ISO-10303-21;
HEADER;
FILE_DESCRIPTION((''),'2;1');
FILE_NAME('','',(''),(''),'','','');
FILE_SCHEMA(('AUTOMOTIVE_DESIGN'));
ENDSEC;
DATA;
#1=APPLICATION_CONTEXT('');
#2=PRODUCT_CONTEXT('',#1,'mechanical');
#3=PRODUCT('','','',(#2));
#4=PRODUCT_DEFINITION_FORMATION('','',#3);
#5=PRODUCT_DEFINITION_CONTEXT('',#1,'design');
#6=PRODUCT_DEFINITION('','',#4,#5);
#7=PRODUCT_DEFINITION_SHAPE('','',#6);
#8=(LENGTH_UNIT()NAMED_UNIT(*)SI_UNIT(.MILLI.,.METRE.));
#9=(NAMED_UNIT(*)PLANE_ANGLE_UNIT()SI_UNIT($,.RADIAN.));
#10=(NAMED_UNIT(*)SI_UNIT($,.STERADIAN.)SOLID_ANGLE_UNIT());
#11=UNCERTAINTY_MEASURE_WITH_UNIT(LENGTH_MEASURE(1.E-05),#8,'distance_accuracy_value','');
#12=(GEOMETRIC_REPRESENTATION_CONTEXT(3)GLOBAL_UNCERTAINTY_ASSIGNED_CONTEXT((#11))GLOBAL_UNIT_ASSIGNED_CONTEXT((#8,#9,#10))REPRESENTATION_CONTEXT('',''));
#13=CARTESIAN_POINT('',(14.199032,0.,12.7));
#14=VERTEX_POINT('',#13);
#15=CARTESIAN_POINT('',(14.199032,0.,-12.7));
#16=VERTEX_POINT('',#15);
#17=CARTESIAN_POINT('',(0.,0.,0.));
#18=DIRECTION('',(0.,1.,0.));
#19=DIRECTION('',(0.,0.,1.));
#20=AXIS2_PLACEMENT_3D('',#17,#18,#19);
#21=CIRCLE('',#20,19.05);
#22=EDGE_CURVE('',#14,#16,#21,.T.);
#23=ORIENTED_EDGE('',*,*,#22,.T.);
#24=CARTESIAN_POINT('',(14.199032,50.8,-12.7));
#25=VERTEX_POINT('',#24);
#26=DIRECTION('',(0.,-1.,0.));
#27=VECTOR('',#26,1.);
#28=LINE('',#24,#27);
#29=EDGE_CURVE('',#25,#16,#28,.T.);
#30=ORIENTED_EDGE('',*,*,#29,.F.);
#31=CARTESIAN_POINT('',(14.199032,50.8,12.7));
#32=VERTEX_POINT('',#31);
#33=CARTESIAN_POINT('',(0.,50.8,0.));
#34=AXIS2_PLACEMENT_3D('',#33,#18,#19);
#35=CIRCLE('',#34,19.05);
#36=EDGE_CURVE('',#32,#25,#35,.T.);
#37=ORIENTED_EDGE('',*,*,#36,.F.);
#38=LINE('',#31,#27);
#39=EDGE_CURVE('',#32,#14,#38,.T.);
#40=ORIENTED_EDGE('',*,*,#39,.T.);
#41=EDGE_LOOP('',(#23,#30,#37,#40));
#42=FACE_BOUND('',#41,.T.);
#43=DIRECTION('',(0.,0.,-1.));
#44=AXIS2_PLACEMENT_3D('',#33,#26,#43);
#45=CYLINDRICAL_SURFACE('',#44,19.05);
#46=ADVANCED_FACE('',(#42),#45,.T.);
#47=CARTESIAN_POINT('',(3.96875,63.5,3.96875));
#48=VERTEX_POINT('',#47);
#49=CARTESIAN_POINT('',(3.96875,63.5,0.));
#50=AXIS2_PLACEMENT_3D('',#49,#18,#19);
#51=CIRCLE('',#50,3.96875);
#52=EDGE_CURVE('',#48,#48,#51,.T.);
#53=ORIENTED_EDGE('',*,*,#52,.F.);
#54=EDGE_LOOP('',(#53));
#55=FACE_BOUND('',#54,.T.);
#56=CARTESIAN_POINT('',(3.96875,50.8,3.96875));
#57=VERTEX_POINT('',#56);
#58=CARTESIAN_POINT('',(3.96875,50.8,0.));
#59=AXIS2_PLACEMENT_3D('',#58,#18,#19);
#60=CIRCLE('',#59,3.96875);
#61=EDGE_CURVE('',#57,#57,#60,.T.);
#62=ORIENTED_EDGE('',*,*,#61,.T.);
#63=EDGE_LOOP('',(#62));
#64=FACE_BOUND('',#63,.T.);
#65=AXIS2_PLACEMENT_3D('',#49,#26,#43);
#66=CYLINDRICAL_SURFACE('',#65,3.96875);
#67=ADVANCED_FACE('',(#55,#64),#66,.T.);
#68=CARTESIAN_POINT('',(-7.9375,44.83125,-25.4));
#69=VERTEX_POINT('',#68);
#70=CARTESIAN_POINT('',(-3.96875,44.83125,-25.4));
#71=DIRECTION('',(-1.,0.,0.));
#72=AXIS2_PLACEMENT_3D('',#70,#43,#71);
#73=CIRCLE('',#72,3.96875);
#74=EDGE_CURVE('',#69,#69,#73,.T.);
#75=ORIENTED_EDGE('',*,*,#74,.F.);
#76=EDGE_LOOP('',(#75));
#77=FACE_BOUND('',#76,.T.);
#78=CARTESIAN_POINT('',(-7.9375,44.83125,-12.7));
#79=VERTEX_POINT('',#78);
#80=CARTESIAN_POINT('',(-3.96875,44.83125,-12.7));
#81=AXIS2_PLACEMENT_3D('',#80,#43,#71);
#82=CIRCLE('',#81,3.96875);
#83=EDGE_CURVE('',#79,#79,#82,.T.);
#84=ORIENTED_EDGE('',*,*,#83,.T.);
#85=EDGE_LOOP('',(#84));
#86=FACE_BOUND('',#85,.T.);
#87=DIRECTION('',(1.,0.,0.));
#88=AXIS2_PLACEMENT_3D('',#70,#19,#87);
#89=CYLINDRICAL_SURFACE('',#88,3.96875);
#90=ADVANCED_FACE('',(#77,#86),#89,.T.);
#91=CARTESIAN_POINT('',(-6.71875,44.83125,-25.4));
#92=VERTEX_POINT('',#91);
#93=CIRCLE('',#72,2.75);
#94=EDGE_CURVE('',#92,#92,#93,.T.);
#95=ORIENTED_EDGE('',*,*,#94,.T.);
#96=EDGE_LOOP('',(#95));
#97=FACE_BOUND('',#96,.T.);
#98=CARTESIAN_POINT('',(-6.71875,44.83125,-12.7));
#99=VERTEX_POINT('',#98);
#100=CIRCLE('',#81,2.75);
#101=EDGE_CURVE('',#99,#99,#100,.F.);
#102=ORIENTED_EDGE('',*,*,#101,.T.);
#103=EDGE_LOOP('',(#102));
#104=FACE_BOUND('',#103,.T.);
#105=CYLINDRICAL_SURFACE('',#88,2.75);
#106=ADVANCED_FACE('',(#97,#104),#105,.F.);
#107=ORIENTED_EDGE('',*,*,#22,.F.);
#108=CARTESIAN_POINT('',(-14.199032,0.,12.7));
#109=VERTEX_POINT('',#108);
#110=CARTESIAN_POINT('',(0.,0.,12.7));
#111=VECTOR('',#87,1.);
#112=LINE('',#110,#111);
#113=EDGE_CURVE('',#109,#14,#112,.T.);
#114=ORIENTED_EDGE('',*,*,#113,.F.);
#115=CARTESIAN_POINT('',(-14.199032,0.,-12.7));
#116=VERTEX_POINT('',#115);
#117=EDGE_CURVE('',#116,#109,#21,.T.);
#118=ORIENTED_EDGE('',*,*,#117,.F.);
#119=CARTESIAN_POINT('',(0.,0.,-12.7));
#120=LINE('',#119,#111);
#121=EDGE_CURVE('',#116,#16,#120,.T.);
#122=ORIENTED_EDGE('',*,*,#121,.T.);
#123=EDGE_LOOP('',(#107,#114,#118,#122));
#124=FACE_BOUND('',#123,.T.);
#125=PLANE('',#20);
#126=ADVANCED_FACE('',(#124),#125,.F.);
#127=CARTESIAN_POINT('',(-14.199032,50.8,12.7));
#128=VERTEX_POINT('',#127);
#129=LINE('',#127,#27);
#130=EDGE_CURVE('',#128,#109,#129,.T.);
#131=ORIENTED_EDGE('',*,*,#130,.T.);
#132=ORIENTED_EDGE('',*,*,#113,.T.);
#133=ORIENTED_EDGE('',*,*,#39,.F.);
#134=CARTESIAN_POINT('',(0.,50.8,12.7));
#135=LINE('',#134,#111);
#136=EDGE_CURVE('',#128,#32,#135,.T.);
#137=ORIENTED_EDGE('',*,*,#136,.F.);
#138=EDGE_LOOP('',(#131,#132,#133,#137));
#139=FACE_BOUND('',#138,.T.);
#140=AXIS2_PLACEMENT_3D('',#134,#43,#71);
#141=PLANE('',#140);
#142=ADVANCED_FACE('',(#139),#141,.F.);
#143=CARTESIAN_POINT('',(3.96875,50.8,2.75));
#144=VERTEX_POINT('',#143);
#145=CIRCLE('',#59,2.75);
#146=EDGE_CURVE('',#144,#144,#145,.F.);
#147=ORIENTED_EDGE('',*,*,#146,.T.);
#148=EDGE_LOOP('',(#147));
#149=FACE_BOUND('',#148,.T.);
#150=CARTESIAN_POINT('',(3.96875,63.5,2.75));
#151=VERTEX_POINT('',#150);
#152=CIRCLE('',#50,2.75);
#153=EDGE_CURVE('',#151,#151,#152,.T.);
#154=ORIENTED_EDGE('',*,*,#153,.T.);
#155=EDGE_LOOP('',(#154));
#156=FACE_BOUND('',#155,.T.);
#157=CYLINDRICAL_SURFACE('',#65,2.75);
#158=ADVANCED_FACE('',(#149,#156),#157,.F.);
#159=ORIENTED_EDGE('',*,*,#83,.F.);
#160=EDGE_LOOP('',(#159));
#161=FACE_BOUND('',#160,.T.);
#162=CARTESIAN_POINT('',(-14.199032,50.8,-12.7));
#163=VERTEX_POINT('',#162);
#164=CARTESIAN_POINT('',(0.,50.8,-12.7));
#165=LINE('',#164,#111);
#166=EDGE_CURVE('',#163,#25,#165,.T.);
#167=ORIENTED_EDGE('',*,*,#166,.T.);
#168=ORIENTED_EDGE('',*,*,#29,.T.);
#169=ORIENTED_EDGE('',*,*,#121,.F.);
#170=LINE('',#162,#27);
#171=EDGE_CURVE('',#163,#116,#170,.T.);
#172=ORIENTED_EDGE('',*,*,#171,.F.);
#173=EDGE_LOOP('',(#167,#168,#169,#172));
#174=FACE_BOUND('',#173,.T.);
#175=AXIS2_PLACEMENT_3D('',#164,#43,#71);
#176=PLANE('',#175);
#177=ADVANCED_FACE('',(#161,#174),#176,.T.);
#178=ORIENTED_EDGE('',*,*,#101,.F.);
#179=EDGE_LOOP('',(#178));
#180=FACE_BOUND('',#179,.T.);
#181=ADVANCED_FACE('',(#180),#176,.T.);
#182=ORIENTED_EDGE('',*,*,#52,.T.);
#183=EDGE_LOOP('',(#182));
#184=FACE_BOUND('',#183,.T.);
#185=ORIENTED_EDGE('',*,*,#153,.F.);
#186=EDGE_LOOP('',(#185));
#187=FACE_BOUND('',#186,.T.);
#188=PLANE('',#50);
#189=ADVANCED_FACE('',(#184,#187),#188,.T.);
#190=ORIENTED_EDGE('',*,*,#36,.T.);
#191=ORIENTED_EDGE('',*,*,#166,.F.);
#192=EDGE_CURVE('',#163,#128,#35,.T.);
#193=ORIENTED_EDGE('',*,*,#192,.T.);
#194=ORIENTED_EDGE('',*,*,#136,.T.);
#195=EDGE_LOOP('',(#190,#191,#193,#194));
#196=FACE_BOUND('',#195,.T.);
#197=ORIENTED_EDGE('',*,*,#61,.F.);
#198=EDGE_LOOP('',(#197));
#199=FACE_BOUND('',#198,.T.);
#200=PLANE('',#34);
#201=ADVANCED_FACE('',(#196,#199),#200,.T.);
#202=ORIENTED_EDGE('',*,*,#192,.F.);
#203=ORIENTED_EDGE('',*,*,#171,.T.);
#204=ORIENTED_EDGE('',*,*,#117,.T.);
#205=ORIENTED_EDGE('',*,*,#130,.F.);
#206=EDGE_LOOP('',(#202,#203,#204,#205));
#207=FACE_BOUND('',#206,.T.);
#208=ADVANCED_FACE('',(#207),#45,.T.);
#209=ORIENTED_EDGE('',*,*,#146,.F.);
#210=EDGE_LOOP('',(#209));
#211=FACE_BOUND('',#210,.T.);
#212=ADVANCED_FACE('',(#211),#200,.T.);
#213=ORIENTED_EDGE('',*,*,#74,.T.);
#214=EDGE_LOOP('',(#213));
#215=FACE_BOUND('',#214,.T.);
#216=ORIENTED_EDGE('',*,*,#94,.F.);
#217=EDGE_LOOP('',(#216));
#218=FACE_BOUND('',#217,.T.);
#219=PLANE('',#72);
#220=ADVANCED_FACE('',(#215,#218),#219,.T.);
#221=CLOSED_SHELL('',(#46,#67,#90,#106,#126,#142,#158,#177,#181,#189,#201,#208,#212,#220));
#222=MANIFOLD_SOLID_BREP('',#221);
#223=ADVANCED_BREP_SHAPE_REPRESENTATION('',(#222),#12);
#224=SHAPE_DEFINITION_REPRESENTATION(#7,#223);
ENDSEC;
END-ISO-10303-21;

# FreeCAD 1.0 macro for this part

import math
import FreeCAD as App
import Part
import Sketcher
from FreeCAD import Vector
Q = App.Units.Quantity

doc = App.newDocument("Part")
body = doc.addObject("PartDesign::Body", "Body")

# Sketch on XZ plane
sketch1 = body.newObject("Sketcher::SketchObject", "Sketch")
sketch1.AttachmentSupport = (doc.getObject("XZ_Plane"), [""])
sketch1.MapMode = "FlatFace"
sketch1.addGeometry([
    Part.LineSegment(Vector(14, -13, 0), Vector(-14, -13, 0)),  # 0
    Part.ArcOfCircle(Part.Circle(Vector(0, 0, 0), Vector(0, 0, 1), 19), math.radians(138), math.radians(222)),  # 1
    Part.LineSegment(Vector(-14, 13, 0), Vector(14, 13, 0)),  # 2
    Part.ArcOfCircle(Part.Circle(Vector(0, 0, 0), Vector(0, 0, 1), 19), math.radians(0), math.radians(42)),  # 3
    Part.ArcOfCircle(Part.Circle(Vector(0, 0, 0), Vector(0, 0, 1), 19), math.radians(-42), math.radians(0)),  # 4
], False)
sketch1.addConstraint([
    Sketcher.Constraint("Coincident", 0, 2, 1, 2),
    Sketcher.Constraint("Coincident", 1, 1, 2, 1),
    Sketcher.Constraint("Coincident", 2, 2, 3, 2),
    Sketcher.Constraint("Tangent", 3, 1, 4, 2),
    Sketcher.Constraint("Coincident", 4, 1, 0, 1),
    Sketcher.Constraint("Horizontal", 0),
    Sketcher.Constraint("Horizontal", 2),
    Sketcher.Constraint("Coincident", 1, 3, -1, 1),
    Sketcher.Constraint("Coincident", 3, 3, -1, 1),
    Sketcher.Constraint("Equal", 1, 3),
    Sketcher.Constraint("Equal", 3, 4),
    Sketcher.Constraint("PointOnObject", 3, 1, -1),
    Sketcher.Constraint("Vertical", 0, 2, 1, 1),
    Sketcher.Constraint("Radius", 1, Q("0.75 in")),
    Sketcher.Constraint("DistanceY", 0, 2, 1, 1, Q("1 in")),
])
pad1 = body.newObject("PartDesign::Pad", "Pad")
pad1.Profile = sketch1
pad1.Length = Q("2 in")
pad1.Reversed = True

# Sketch on XZ plane
sketch2 = body.newObject("Sketcher::SketchObject", "Sketch001")
sketch2.AttachmentSupport = (doc.getObject("XZ_Plane"), [""])
sketch2.MapMode = "FlatFace"
sketch2.AttachmentOffset = App.Placement(Vector(0, 0, -2 * 25.4), App.Rotation())
sketch2.addGeometry([
    Part.Circle(Vector(4, 0, 0), Vector(0, 0, 1), 4),
    Part.Circle(Vector(4, 0, 0), Vector(0, 0, 1), 2.8),
], False)
sketch2.addConstraint([
    Sketcher.Constraint("Coincident", 1, 3, 0, 3),
    Sketcher.Constraint("PointOnObject", 0, 3, -1),
    Sketcher.Constraint("Diameter", 0, Q("0.3125 in")),
    Sketcher.Constraint("Diameter", 1, Q("5.5 mm")),
    Sketcher.Constraint("DistanceX", -1, 1, 0, 3, Q("0.15625 in")),
])
pad2 = body.newObject("PartDesign::Pad", "Pad001")
pad2.Profile = sketch2
pad2.Length = Q("0.5 in")
pad2.Reversed = True

# Sketch on XY plane
sketch3 = body.newObject("Sketcher::SketchObject", "Sketch002")
sketch3.AttachmentSupport = (doc.getObject("XY_Plane"), [""])
sketch3.MapMode = "FlatFace"
sketch3.AttachmentOffset = App.Placement(Vector(0, 0, -0.5 * 25.4), App.Rotation())
sketch3.addGeometry([
    Part.Circle(Vector(-4, 44.8, 0), Vector(0, 0, 1), 4),
    Part.Circle(Vector(-4, 44.8, 0), Vector(0, 0, 1), 2.8),
], False)
sketch3.addConstraint([
    Sketcher.Constraint("Coincident", 1, 3, 0, 3),
    Sketcher.Constraint("Diameter", 0, Q("0.3125 in")),
    Sketcher.Constraint("Diameter", 1, Q("5.5 mm")),
    Sketcher.Constraint("DistanceX", 0, 3, -1, 1, Q("0.15625 in")),
    Sketcher.Constraint("DistanceY", -1, 1, 0, 3, Q("44.83125 mm")),
])
pad3 = body.newObject("PartDesign::Pad", "Pad002")
pad3.Profile = sketch3
pad3.Length = Q("0.5 in")
pad3.Reversed = True

doc.recompute()
